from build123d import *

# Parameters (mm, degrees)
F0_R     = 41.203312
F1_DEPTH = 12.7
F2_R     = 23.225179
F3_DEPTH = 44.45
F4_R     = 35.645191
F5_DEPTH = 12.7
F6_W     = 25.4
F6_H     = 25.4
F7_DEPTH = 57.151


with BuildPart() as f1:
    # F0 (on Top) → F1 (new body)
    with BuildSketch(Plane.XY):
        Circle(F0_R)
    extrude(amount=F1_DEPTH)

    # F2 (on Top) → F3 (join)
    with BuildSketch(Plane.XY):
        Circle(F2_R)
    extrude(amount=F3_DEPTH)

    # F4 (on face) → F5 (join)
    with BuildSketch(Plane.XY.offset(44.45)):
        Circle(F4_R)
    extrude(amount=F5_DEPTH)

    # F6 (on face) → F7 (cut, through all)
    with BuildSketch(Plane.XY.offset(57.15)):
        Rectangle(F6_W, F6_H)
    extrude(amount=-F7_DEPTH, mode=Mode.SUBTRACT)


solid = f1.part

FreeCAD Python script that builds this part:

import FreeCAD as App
import Part
import Sketcher
from FreeCAD import Vector
Q = App.Units.Quantity

doc = App.newDocument("Part")
params = doc.addObject("Spreadsheet::Sheet", "Params")
for row, (alias, value) in enumerate([
    ("pad1_length", "0.5 in"),
    ("pad2_length", "1.75 in"),
    ("pad3_length", "0.5 in"),
    ("sketch4_width", "1 in"),
], start=1):
    params.set(f"A{row}", alias)
    params.set(f"B{row}", "=" + value)
    params.setAlias(f"B{row}", alias)

body = doc.addObject("PartDesign::Body", "Body")

# Sketch on XY plane
sketch1 = body.newObject("Sketcher::SketchObject", "Sketch")
sketch1.AttachmentSupport = (doc.getObject("XY_Plane"), [""])
sketch1.MapMode = "FlatFace"
sketch1.addGeometry(Part.Circle(Vector(0, 0, 0), Vector(0, 0, 1), 41), False)
sketch1.addConstraint([
    Sketcher.Constraint("Coincident", 0, 3, -1, 1),
    Sketcher.Constraint("Diameter", 0, Q("82.406624 mm")),
])
pad1 = body.newObject("PartDesign::Pad", "Pad")
pad1.Profile = sketch1
pad1.setExpression("Length", "Params.pad1_length")

# Sketch on XY plane
sketch2 = body.newObject("Sketcher::SketchObject", "Sketch001")
sketch2.AttachmentSupport = (doc.getObject("XY_Plane"), [""])
sketch2.MapMode = "FlatFace"
sketch2.addGeometry(Part.Circle(Vector(0, 0, 0), Vector(0, 0, 1), 23), False)
sketch2.addConstraint([
    Sketcher.Constraint("Coincident", 0, 3, -1, 1),
    Sketcher.Constraint("Diameter", 0, Q("46.450358 mm")),
])
pad2 = body.newObject("PartDesign::Pad", "Pad001")
pad2.Profile = sketch2
pad2.setExpression("Length", "Params.pad2_length")

# Sketch on XY plane
sketch3 = body.newObject("Sketcher::SketchObject", "Sketch002")
sketch3.AttachmentSupport = (doc.getObject("XY_Plane"), [""])
sketch3.MapMode = "FlatFace"
sketch3.AttachmentOffset = App.Placement(Vector(0, 0, 1.75 * 25.4), App.Rotation())
sketch3.addGeometry(Part.Circle(Vector(0, 0, 0), Vector(0, 0, 1), 36), False)
sketch3.addConstraint([
    Sketcher.Constraint("Coincident", 0, 3, -1, 1),
    Sketcher.Constraint("Diameter", 0, Q("71.290382 mm")),
])
pad3 = body.newObject("PartDesign::Pad", "Pad002")
pad3.Profile = sketch3
pad3.setExpression("Length", "Params.pad3_length")

# Sketch on XY plane
sketch4 = body.newObject("Sketcher::SketchObject", "Sketch003")
sketch4.AttachmentSupport = (doc.getObject("XY_Plane"), [""])
sketch4.MapMode = "FlatFace"
sketch4.AttachmentOffset = App.Placement(Vector(0, 0, 2.25 * 25.4), App.Rotation())
sketch4.addGeometry([
    Part.LineSegment(Vector(-13, 13, 0), Vector(-13, -13, 0)),
    Part.LineSegment(Vector(-13, -13, 0), Vector(13, -13, 0)),
    Part.LineSegment(Vector(13, -13, 0), Vector(13, 13, 0)),
    Part.LineSegment(Vector(13, 13, 0), Vector(-13, 13, 0)),
], False)
sketch4.addConstraint([
    Sketcher.Constraint("Coincident", 0, 2, 1, 1),
    Sketcher.Constraint("Coincident", 1, 2, 2, 1),
    Sketcher.Constraint("Coincident", 2, 2, 3, 1),
    Sketcher.Constraint("Coincident", 3, 2, 0, 1),
    Sketcher.Constraint("Vertical", 0),
    Sketcher.Constraint("Horizontal", 1),
    Sketcher.Constraint("Vertical", 2),
    Sketcher.Constraint("Horizontal", 3),
    Sketcher.Constraint("Symmetric", 0, 2, 2, 2, -1, 1),
    Sketcher.Constraint("Equal", 3, 0),
    Sketcher.Constraint("DistanceX", 1, 1, 1, 2, Q("1 in")),
])
sketch4.setExpression("Constraints[10]", "Params.sketch4_width")
pocket1 = body.newObject("PartDesign::Pocket", "Pocket")
pocket1.Profile = sketch4
pocket1.Type = "ThroughAll"

doc.recompute()
